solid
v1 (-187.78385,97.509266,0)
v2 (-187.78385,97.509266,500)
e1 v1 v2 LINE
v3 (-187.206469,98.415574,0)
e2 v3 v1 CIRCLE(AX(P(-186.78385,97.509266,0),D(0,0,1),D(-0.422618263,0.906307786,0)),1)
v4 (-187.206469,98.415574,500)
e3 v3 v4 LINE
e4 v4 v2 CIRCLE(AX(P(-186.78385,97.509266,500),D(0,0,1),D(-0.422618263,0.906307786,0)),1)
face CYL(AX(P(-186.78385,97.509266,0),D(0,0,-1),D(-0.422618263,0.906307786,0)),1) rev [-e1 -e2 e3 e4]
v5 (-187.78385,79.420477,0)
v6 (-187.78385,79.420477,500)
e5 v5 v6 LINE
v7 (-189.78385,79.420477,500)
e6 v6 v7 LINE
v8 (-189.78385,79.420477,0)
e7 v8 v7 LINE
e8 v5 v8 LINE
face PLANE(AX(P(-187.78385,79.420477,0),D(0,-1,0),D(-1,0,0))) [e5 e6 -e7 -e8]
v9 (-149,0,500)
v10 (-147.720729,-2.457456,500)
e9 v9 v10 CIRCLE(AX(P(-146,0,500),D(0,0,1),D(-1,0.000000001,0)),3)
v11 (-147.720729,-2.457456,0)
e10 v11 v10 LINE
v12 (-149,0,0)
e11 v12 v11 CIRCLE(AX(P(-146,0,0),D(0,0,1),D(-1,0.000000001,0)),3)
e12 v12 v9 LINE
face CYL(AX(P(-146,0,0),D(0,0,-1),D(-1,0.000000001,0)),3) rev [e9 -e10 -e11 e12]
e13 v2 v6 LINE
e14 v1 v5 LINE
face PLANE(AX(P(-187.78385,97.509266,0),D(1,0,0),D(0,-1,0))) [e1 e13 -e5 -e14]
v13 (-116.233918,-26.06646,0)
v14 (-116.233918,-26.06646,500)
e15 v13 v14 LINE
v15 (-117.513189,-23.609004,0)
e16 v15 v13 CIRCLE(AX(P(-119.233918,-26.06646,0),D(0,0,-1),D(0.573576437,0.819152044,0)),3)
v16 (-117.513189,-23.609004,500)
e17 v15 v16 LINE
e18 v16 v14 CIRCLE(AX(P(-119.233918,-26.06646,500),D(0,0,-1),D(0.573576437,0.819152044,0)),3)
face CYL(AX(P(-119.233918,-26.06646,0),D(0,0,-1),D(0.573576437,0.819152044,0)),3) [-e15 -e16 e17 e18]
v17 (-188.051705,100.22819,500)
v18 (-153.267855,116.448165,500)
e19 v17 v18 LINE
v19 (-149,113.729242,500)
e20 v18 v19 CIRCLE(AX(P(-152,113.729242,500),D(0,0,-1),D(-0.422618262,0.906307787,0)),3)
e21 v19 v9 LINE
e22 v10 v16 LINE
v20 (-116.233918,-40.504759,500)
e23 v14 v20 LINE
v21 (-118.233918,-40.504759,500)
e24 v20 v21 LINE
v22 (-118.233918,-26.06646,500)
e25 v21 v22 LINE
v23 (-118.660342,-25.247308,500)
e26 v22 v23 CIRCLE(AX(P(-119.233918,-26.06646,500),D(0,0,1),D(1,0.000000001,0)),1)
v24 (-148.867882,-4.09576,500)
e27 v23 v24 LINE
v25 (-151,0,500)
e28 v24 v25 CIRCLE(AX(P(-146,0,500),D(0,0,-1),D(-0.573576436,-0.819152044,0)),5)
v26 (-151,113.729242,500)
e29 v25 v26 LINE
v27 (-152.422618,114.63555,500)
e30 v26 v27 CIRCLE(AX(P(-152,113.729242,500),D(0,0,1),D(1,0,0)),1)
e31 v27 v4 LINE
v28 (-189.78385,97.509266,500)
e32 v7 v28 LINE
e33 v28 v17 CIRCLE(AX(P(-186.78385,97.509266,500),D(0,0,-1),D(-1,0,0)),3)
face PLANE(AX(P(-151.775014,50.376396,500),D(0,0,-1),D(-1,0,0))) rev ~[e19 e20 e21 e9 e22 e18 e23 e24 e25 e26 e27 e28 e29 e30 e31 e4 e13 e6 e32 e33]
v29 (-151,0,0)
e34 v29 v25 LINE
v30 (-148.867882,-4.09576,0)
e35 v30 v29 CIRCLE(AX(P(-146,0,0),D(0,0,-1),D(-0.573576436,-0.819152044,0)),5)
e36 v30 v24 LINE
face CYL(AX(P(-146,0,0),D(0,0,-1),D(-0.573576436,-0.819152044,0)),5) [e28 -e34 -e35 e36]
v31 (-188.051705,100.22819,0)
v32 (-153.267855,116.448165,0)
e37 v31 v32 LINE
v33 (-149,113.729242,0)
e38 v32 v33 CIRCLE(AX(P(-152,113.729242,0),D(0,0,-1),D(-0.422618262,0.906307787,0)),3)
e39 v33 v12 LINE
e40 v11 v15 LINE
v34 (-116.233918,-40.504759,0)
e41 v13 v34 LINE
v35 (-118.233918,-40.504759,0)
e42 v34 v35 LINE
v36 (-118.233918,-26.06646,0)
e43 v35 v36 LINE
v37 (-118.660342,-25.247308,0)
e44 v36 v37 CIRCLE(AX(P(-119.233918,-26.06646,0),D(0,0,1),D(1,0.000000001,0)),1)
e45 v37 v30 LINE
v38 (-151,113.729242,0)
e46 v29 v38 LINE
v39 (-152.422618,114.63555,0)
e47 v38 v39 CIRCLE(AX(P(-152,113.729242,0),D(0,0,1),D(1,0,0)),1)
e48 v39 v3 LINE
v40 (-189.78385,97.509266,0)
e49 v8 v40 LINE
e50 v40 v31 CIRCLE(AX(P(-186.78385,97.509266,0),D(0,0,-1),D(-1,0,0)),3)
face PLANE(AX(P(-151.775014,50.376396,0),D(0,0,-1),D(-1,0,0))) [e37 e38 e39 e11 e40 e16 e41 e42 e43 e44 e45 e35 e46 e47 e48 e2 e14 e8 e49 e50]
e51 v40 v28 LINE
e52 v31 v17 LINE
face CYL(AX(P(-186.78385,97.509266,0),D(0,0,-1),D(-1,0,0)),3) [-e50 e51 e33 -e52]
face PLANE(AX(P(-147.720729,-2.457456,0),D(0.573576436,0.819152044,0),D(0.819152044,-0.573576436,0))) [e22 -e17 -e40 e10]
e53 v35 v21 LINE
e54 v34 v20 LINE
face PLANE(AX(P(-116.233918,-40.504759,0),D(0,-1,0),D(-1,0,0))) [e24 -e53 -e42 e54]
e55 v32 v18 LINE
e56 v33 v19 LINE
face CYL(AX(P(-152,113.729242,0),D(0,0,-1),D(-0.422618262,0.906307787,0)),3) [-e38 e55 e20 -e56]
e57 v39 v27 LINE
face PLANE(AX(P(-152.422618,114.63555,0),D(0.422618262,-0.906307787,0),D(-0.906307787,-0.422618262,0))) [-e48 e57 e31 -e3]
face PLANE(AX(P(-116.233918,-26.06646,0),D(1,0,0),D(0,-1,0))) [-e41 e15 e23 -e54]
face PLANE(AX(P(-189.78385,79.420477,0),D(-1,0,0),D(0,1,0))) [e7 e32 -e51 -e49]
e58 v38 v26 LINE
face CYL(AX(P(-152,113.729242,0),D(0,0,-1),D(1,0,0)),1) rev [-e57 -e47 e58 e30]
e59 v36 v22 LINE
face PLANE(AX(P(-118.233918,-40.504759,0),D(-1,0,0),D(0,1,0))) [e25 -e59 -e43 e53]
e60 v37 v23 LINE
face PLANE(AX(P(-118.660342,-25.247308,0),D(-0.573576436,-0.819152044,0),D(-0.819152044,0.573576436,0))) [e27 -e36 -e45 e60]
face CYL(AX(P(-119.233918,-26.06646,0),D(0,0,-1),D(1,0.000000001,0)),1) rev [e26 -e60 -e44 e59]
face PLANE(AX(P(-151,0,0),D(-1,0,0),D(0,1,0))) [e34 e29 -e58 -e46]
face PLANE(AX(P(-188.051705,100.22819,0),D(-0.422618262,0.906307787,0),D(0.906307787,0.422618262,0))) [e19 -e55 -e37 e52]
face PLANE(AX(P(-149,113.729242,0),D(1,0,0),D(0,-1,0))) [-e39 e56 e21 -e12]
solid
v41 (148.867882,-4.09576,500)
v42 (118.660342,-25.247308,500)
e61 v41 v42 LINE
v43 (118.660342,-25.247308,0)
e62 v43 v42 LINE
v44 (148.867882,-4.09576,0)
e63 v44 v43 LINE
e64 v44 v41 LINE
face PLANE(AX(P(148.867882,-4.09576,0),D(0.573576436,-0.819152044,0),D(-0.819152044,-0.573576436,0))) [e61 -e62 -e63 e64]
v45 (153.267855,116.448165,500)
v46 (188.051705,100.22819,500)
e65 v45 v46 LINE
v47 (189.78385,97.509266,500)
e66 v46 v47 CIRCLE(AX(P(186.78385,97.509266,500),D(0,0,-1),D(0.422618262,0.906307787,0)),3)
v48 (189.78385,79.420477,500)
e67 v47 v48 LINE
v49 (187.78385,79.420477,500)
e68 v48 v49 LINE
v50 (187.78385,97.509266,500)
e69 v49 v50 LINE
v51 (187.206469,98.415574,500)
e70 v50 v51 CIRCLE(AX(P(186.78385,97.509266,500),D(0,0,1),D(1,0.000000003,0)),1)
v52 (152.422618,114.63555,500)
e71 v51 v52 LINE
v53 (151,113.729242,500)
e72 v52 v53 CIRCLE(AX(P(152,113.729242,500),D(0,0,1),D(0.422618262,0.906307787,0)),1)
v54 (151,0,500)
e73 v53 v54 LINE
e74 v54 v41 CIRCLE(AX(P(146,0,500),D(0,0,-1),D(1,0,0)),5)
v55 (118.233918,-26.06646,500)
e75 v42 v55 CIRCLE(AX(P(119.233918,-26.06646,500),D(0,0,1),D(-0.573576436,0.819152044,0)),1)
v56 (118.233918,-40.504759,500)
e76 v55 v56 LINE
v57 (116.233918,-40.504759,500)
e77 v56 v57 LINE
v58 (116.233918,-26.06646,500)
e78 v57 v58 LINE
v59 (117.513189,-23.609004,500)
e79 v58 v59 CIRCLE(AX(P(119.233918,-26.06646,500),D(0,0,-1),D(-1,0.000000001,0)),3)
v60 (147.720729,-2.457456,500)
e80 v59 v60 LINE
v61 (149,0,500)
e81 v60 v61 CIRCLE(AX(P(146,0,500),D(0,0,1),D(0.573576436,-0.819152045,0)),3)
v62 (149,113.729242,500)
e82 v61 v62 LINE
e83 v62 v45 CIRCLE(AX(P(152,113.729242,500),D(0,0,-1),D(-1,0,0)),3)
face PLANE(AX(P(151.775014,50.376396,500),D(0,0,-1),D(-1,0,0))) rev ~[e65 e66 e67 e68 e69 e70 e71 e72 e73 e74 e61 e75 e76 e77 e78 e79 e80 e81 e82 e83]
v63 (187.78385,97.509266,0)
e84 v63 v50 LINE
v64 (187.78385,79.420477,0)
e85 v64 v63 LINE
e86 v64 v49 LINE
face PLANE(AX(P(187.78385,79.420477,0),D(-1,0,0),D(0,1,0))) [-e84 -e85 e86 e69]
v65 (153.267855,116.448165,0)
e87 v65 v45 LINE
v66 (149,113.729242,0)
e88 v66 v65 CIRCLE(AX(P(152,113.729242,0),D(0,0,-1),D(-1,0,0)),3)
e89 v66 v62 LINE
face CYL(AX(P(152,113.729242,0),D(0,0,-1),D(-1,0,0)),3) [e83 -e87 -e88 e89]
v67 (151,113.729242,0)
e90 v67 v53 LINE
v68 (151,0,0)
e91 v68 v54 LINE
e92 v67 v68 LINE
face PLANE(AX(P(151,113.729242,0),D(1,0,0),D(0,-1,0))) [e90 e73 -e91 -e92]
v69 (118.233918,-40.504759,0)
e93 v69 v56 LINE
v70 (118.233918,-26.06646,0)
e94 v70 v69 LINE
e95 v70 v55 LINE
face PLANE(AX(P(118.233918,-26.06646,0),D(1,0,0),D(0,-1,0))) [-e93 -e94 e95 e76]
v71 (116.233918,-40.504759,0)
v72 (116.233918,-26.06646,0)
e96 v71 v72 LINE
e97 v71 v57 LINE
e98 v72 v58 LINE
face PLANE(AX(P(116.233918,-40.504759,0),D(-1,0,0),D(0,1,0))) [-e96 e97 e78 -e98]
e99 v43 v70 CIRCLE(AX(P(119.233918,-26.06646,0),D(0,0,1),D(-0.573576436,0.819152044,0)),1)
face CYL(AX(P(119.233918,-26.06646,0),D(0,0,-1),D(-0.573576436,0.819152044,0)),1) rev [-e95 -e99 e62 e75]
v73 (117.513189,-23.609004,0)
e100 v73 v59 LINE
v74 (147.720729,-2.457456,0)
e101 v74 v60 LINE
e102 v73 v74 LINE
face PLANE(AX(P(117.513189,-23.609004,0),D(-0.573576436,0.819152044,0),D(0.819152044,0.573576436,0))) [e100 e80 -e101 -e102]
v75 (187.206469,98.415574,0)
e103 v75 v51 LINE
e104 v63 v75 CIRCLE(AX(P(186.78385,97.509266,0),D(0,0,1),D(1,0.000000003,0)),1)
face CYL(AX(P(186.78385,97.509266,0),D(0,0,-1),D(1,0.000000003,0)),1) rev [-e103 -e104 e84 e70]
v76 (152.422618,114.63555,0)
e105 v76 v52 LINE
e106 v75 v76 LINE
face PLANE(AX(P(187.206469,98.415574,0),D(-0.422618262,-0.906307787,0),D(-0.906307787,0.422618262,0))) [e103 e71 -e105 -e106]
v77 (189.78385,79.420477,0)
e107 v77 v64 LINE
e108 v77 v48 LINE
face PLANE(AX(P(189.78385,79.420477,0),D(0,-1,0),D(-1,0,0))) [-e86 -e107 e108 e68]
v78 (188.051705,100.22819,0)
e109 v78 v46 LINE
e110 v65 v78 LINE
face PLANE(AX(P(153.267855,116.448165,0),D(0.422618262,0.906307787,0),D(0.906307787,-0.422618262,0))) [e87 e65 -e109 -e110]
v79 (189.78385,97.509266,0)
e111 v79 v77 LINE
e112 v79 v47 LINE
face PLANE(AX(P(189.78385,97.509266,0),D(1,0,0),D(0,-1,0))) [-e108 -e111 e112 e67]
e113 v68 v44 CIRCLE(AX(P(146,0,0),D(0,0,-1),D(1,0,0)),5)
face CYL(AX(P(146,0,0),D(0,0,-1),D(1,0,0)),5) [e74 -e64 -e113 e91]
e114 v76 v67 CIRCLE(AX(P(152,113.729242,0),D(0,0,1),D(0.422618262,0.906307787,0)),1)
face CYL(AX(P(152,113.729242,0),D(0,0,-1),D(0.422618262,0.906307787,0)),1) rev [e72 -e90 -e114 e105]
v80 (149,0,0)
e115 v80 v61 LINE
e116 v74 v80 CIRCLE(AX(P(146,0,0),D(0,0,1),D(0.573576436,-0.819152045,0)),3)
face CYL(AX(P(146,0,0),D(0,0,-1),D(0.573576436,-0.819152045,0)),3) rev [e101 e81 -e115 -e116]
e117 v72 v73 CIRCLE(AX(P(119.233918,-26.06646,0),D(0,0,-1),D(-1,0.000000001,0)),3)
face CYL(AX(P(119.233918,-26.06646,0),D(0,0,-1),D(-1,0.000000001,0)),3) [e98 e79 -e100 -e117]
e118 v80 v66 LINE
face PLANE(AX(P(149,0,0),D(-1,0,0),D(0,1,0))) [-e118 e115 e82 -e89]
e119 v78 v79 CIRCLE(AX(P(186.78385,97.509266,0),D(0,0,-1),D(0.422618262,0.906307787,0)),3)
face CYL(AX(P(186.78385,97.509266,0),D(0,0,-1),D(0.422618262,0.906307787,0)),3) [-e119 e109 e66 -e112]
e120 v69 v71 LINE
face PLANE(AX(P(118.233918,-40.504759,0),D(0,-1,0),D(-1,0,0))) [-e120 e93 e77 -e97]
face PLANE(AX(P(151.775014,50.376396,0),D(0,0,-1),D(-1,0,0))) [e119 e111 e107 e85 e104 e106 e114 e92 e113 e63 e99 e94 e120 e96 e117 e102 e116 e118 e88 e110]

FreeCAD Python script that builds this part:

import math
import FreeCAD as App
import Part
import Sketcher

V = App.Vector
Q = App.Units.Quantity

doc = App.newDocument("Part")
body = doc.addObject("PartDesign::Body", "Body")

sketch1 = doc.addObject("Sketcher::SketchObject", "Sketch")
body.addObject(sketch1)
sketch1.AttachmentSupport = (doc.XY_Plane, [""])
sketch1.MapMode = "FlatFace"
sketch1.addGeometry([
    Part.ArcOfCircle(Part.Circle(V(-119.2, -26.1, 0), V(0, 0, 1), 1), math.radians(0), math.radians(55)),
    Part.LineSegment(V(-118.2, -26.1, 0), V(-118.2, -40.5, 0)),
    Part.LineSegment(V(-118.2, -40.5, 0), V(-116.2, -40.5, 0)),
    Part.LineSegment(V(-116.2, -40.5, 0), V(-116.2, -26.1, 0)),
    Part.ArcOfCircle(Part.Circle(V(-119.2, -26.1, 0), V(0, 0, 1), 3), math.radians(0), math.radians(55)),
    Part.LineSegment(V(-117.5, -23.6, 0), V(-147.7, -2.5, 0)),
    Part.ArcOfCircle(Part.Circle(V(-146, 0, 0), V(0, 0, 1), 3), math.radians(180), math.radians(235)),
    Part.LineSegment(V(-149, 0, 0), V(-149, 113.7, 0)),
    Part.ArcOfCircle(Part.Circle(V(-152, 113.7, 0), V(0, 0, 1), 3), math.radians(0), math.radians(115)),
    Part.LineSegment(V(-153.3, 116.4, 0), V(-188.1, 100.2, 0)),
    Part.ArcOfCircle(Part.Circle(V(-186.8, 97.5, 0), V(0, 0, 1), 3), math.radians(115), math.radians(180)),
    Part.LineSegment(V(-189.8, 97.5, 0), V(-189.8, 79.4, 0)),
    Part.LineSegment(V(-189.8, 79.4, 0), V(-187.8, 79.4, 0)),
    Part.LineSegment(V(-187.8, 79.4, 0), V(-187.8, 97.5, 0)),
    Part.ArcOfCircle(Part.Circle(V(-186.8, 97.5, 0), V(0, 0, 1), 1), math.radians(115), math.radians(180)),
    Part.LineSegment(V(-187.2, 98.4, 0), V(-152.4, 114.6, 0)),
    Part.ArcOfCircle(Part.Circle(V(-152, 113.7, 0), V(0, 0, 1), 1), math.radians(0), math.radians(115)),
    Part.LineSegment(V(-151, 113.7, 0), V(-151, 0, 0)),
    Part.ArcOfCircle(Part.Circle(V(-146, 0, 0), V(0, 0, 1), 5), math.radians(180), math.radians(235)),
    Part.LineSegment(V(-148.9, -4.1, 0), V(-118.7, -25.2, 0)),
], False)
sketch1.addConstraint([
    Sketcher.Constraint("Tangent", 0, 1, 1, 1),
    Sketcher.Constraint("Coincident", 1, 2, 2, 1),
    Sketcher.Constraint("Coincident", 2, 2, 3, 1),
    Sketcher.Constraint("Tangent", 3, 2, 4, 1),
    Sketcher.Constraint("Tangent", 4, 2, 5, 1),
    Sketcher.Constraint("Tangent", 5, 2, 6, 2),
    Sketcher.Constraint("Tangent", 6, 1, 7, 1),
    Sketcher.Constraint("Tangent", 7, 2, 8, 1),
    Sketcher.Constraint("Tangent", 8, 2, 9, 1),
    Sketcher.Constraint("Tangent", 9, 2, 10, 1),
    Sketcher.Constraint("Tangent", 10, 2, 11, 1),
    Sketcher.Constraint("Coincident", 11, 2, 12, 1),
    Sketcher.Constraint("Coincident", 12, 2, 13, 1),
    Sketcher.Constraint("Tangent", 13, 2, 14, 2),
    Sketcher.Constraint("Tangent", 14, 1, 15, 1),
    Sketcher.Constraint("Tangent", 15, 2, 16, 2),
    Sketcher.Constraint("Tangent", 16, 1, 17, 1),
    Sketcher.Constraint("Tangent", 17, 2, 18, 1),
    Sketcher.Constraint("Tangent", 18, 2, 19, 1),
    Sketcher.Constraint("Tangent", 19, 2, 0, 2),
    Sketcher.Constraint("Vertical", 1),
    Sketcher.Constraint("Horizontal", 2),
    Sketcher.Constraint("Vertical", 3),
    Sketcher.Constraint("Vertical", 7),
    Sketcher.Constraint("Vertical", 11),
    Sketcher.Constraint("Horizontal", 12),
    Sketcher.Constraint("Vertical", 13),
    Sketcher.Constraint("Vertical", 17),
    Sketcher.Constraint("Coincident", 4, 3, 0, 3),
    Sketcher.Constraint("Coincident", 14, 3, 10, 3),
    Sketcher.Constraint("Coincident", 16, 3, 8, 3),
    Sketcher.Constraint("Coincident", 18, 3, 6, 3),
    Sketcher.Constraint("Equal", 4, 6),
    Sketcher.Constraint("Equal", 6, 8),
    Sketcher.Constraint("Equal", 8, 10),
    Sketcher.Constraint("Equal", 0, 14),
    Sketcher.Constraint("Equal", 14, 16),
    Sketcher.Constraint("PointOnObject", 6, 3, -1),
    Sketcher.Constraint("Radius", 0, 1.0),
    Sketcher.Constraint("Radius", 4, 3.0),
    Sketcher.Constraint("Angle", 5, Q("145 deg")),
    Sketcher.Constraint("Angle", 9, Q("-155 deg")),
    Sketcher.Constraint("DistanceX", 6, 3, -1, 1, 146.0),
    Sketcher.Constraint("DistanceY", 1, 2, 1, 1, 14.438299),
    Sketcher.Constraint("DistanceY", 11, 2, 11, 1, 18.088789),
    Sketcher.Constraint("DistanceY", 0, 3, 8, 3, 139.795702),
    Sketcher.Constraint("DistanceY", 14, 3, 8, 2, 18.938899),
    Sketcher.Constraint("DistanceY", 7, 1, 7, 2, 113.729242),
])
pad1 = doc.addObject("PartDesign::Pad", "Pad")
body.addObject(pad1)
pad1.Profile = sketch1
pad1.Length = 500
body2 = doc.addObject("PartDesign::Body", "Body001")

sketch2 = doc.addObject("Sketcher::SketchObject", "Sketch001")
body2.addObject(sketch2)
sketch2.AttachmentSupport = (doc.getObject("XY_Plane001"), [""])
sketch2.MapMode = "FlatFace"
sketch2.addGeometry([
    Part.ArcOfCircle(Part.Circle(V(119.2, -26.1, 0), V(0, 0, 1), 3), math.radians(125), math.radians(180)),
    Part.LineSegment(V(116.2, -26.1, 0), V(116.2, -40.5, 0)),
    Part.LineSegment(V(116.2, -40.5, 0), V(118.2, -40.5, 0)),
    Part.LineSegment(V(118.2, -40.5, 0), V(118.2, -26.1, 0)),
    Part.ArcOfCircle(Part.Circle(V(119.2, -26.1, 0), V(0, 0, 1), 1), math.radians(125), math.radians(180)),
    Part.LineSegment(V(118.7, -25.2, 0), V(148.9, -4.1, 0)),
    Part.ArcOfCircle(Part.Circle(V(146, 0, 0), V(0, 0, 1), 5), math.radians(-55), math.radians(0)),
    Part.LineSegment(V(151, 0, 0), V(151, 113.7, 0)),
    Part.ArcOfCircle(Part.Circle(V(152, 113.7, 0), V(0, 0, 1), 1), math.radians(65), math.radians(180)),
    Part.LineSegment(V(152.4, 114.6, 0), V(187.2, 98.4, 0)),
    Part.ArcOfCircle(Part.Circle(V(186.8, 97.5, 0), V(0, 0, 1), 1), math.radians(0), math.radians(65)),
    Part.LineSegment(V(187.8, 97.5, 0), V(187.8, 79.4, 0)),
    Part.LineSegment(V(187.8, 79.4, 0), V(189.8, 79.4, 0)),
    Part.LineSegment(V(189.8, 79.4, 0), V(189.8, 97.5, 0)),
    Part.ArcOfCircle(Part.Circle(V(186.8, 97.5, 0), V(0, 0, 1), 3), math.radians(0), math.radians(65)),
    Part.LineSegment(V(188.1, 100.2, 0), V(153.3, 116.4, 0)),
    Part.ArcOfCircle(Part.Circle(V(152, 113.7, 0), V(0, 0, 1), 3), math.radians(65), math.radians(180)),
    Part.LineSegment(V(149, 113.7, 0), V(149, 0, 0)),
    Part.ArcOfCircle(Part.Circle(V(146, 0, 0), V(0, 0, 1), 3), math.radians(-55), math.radians(0)),
    Part.LineSegment(V(147.7, -2.5, 0), V(117.5, -23.6, 0)),
], False)
sketch2.addConstraint([
    Sketcher.Constraint("Tangent", 0, 2, 1, 1),
    Sketcher.Constraint("Coincident", 1, 2, 2, 1),
    Sketcher.Constraint("Coincident", 2, 2, 3, 1),
    Sketcher.Constraint("Tangent", 3, 2, 4, 2),
    Sketcher.Constraint("Tangent", 4, 1, 5, 1),
    Sketcher.Constraint("Tangent", 5, 2, 6, 1),
    Sketcher.Constraint("Tangent", 6, 2, 7, 1),
    Sketcher.Constraint("Tangent", 7, 2, 8, 2),
    Sketcher.Constraint("Tangent", 8, 1, 9, 1),
    Sketcher.Constraint("Tangent", 9, 2, 10, 2),
    Sketcher.Constraint("Tangent", 10, 1, 11, 1),
    Sketcher.Constraint("Coincident", 11, 2, 12, 1),
    Sketcher.Constraint("Coincident", 12, 2, 13, 1),
    Sketcher.Constraint("Tangent", 13, 2, 14, 1),
    Sketcher.Constraint("Tangent", 14, 2, 15, 1),
    Sketcher.Constraint("Tangent", 15, 2, 16, 1),
    Sketcher.Constraint("Tangent", 16, 2, 17, 1),
    Sketcher.Constraint("Tangent", 17, 2, 18, 2),
    Sketcher.Constraint("Tangent", 18, 1, 19, 1),
    Sketcher.Constraint("Tangent", 19, 2, 0, 1),
    Sketcher.Constraint("Vertical", 1),
    Sketcher.Constraint("Horizontal", 2),
    Sketcher.Constraint("Vertical", 3),
    Sketcher.Constraint("Vertical", 7),
    Sketcher.Constraint("Vertical", 11),
    Sketcher.Constraint("Horizontal", 12),
    Sketcher.Constraint("Vertical", 13),
    Sketcher.Constraint("Vertical", 17),
    Sketcher.Constraint("Coincident", 4, 3, 0, 3),
    Sketcher.Constraint("Coincident", 14, 3, 10, 3),
    Sketcher.Constraint("Coincident", 16, 3, 8, 3),
    Sketcher.Constraint("Coincident", 18, 3, 6, 3),
    Sketcher.Constraint("Equal", 4, 8),
    Sketcher.Constraint("Equal", 8, 10),
    Sketcher.Constraint("Equal", 0, 14),
    Sketcher.Constraint("Equal", 14, 16),
    Sketcher.Constraint("Equal", 16, 18),
    Sketcher.Constraint("PointOnObject", 6, 3, -1),
    Sketcher.Constraint("Radius", 0, 3.0),
    Sketcher.Constraint("Radius", 4, 1.0),
    Sketcher.Constraint("Angle", 5, Q("35 deg")),
    Sketcher.Constraint("Angle", 9, Q("-25 deg")),
    Sketcher.Constraint("DistanceX", -1, 1, 6, 3, 146.0),
    Sketcher.Constraint("DistanceY", 1, 2, 1, 1, 14.438299),
    Sketcher.Constraint("DistanceY", 11, 2, 11, 1, 18.088789),
    Sketcher.Constraint("DistanceY", 4, 3, 8, 3, 139.795702),
    Sketcher.Constraint("DistanceY", 0, 3, 5, 2, 21.9707),
    Sketcher.Constraint("DistanceX", -1, 1, 10, 3, 186.78385),
])
pad2 = doc.addObject("PartDesign::Pad", "Pad001")
body2.addObject(pad2)
pad2.Profile = sketch2
pad2.Length = 500

doc.recompute()
